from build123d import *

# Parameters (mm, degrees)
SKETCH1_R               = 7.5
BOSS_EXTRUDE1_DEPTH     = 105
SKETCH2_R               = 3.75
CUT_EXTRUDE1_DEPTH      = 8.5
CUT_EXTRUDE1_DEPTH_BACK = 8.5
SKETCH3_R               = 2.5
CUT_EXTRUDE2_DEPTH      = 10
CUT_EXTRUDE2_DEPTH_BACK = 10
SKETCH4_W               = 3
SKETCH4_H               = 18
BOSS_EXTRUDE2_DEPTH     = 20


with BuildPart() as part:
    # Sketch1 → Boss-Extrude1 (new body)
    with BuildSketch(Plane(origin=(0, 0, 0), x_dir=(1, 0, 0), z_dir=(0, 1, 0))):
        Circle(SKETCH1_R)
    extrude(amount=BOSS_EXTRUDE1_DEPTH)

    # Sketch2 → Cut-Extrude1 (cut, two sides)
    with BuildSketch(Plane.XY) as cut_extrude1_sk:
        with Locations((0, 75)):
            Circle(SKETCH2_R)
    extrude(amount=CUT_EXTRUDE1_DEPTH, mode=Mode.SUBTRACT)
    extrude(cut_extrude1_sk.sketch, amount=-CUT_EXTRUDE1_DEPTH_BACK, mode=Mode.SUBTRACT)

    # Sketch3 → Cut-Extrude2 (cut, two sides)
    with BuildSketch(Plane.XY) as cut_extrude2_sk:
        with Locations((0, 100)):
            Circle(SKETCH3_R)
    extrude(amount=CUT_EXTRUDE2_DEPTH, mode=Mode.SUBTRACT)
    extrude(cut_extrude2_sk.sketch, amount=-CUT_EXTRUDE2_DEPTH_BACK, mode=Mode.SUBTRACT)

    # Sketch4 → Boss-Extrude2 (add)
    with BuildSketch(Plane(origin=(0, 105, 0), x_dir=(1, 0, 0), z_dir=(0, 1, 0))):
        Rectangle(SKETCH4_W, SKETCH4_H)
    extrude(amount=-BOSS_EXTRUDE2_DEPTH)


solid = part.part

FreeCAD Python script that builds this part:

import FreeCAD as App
import Part
import Sketcher
Q = App.Units.Quantity

doc = App.newDocument("Part")
body = doc.addObject("PartDesign::Body", "Body")

sketch1 = body.newObject("Sketcher::SketchObject", "Sketch")
sketch1.AttachmentSupport = (doc.getObject("XZ_Plane"), [""])
sketch1.MapMode = "FlatFace"
sketch1.addGeometry(Part.Circle(App.Vector(0, 0, 0), App.Vector(0, 0, 1), 8), False)
sketch1.addConstraint([
    Sketcher.Constraint("Coincident", 0, 3, -1, 1),
    Sketcher.Constraint("Diameter", 0, Q("15 mm")),
])
pad1 = body.newObject("PartDesign::Pad", "Pad")
pad1.Profile = sketch1
pad1.Length = 105
pad1.Reversed = True

sketch2 = body.newObject("Sketcher::SketchObject", "Sketch001")
sketch2.AttachmentSupport = (doc.getObject("XY_Plane"), [""])
sketch2.MapMode = "FlatFace"
sketch2.addGeometry(Part.Circle(App.Vector(0, 75, 0), App.Vector(0, 0, 1), 3.8), False)
sketch2.addConstraint([
    Sketcher.Constraint("PointOnObject", 0, 3, -2),
    Sketcher.Constraint("Diameter", 0, Q("7.5 mm")),
    Sketcher.Constraint("DistanceY", -1, 1, 0, 3, Q("75 mm")),
])
pocket1 = body.newObject("PartDesign::Pocket", "Pocket")
pocket1.Profile = sketch2
pocket1.Type = "ThroughAll"
pocket1.Midplane = True

sketch3 = body.newObject("Sketcher::SketchObject", "Sketch002")
sketch3.AttachmentSupport = (doc.getObject("XY_Plane"), [""])
sketch3.MapMode = "FlatFace"
sketch3.addGeometry(Part.Circle(App.Vector(0, 100, 0), App.Vector(0, 0, 1), 2.5), False)
sketch3.addConstraint([
    Sketcher.Constraint("PointOnObject", 0, 3, -2),
    Sketcher.Constraint("Diameter", 0, Q("5 mm")),
    Sketcher.Constraint("DistanceY", -1, 1, 0, 3, Q("100 mm")),
])
pocket2 = body.newObject("PartDesign::Pocket", "Pocket001")
pocket2.Profile = sketch3
pocket2.Type = "ThroughAll"
pocket2.Midplane = True

sketch4 = body.newObject("Sketcher::SketchObject", "Sketch003")
sketch4.AttachmentSupport = (doc.getObject("XZ_Plane"), [""])
sketch4.MapMode = "FlatFace"
sketch4.AttachmentOffset = App.Placement(App.Vector(0, 0, -105), App.Rotation())
sketch4.addGeometry([
    Part.LineSegment(App.Vector(-1.5, -9, 0), App.Vector(-1.5, 9, 0)),
    Part.LineSegment(App.Vector(-1.5, 9, 0), App.Vector(1.5, 9, 0)),
    Part.LineSegment(App.Vector(1.5, 9, 0), App.Vector(1.5, -9, 0)),
    Part.LineSegment(App.Vector(1.5, -9, 0), App.Vector(-1.5, -9, 0)),
], False)
sketch4.addConstraint([
    Sketcher.Constraint("Coincident", 0, 2, 1, 1),
    Sketcher.Constraint("Coincident", 1, 2, 2, 1),
    Sketcher.Constraint("Coincident", 2, 2, 3, 1),
    Sketcher.Constraint("Coincident", 3, 2, 0, 1),
    Sketcher.Constraint("Vertical", 0),
    Sketcher.Constraint("Horizontal", 1),
    Sketcher.Constraint("Vertical", 2),
    Sketcher.Constraint("Horizontal", 3),
    Sketcher.Constraint("Symmetric", 0, 2, 2, 2, -1, 1),
    Sketcher.Constraint("DistanceX", 1, 1, 1, 2, Q("3 mm")),
    Sketcher.Constraint("DistanceY", 0, 1, 0, 2, Q("18 mm")),
])
pad2 = body.newObject("PartDesign::Pad", "Pad001")
pad2.Profile = sketch4
pad2.Length = 20

doc.recompute()
